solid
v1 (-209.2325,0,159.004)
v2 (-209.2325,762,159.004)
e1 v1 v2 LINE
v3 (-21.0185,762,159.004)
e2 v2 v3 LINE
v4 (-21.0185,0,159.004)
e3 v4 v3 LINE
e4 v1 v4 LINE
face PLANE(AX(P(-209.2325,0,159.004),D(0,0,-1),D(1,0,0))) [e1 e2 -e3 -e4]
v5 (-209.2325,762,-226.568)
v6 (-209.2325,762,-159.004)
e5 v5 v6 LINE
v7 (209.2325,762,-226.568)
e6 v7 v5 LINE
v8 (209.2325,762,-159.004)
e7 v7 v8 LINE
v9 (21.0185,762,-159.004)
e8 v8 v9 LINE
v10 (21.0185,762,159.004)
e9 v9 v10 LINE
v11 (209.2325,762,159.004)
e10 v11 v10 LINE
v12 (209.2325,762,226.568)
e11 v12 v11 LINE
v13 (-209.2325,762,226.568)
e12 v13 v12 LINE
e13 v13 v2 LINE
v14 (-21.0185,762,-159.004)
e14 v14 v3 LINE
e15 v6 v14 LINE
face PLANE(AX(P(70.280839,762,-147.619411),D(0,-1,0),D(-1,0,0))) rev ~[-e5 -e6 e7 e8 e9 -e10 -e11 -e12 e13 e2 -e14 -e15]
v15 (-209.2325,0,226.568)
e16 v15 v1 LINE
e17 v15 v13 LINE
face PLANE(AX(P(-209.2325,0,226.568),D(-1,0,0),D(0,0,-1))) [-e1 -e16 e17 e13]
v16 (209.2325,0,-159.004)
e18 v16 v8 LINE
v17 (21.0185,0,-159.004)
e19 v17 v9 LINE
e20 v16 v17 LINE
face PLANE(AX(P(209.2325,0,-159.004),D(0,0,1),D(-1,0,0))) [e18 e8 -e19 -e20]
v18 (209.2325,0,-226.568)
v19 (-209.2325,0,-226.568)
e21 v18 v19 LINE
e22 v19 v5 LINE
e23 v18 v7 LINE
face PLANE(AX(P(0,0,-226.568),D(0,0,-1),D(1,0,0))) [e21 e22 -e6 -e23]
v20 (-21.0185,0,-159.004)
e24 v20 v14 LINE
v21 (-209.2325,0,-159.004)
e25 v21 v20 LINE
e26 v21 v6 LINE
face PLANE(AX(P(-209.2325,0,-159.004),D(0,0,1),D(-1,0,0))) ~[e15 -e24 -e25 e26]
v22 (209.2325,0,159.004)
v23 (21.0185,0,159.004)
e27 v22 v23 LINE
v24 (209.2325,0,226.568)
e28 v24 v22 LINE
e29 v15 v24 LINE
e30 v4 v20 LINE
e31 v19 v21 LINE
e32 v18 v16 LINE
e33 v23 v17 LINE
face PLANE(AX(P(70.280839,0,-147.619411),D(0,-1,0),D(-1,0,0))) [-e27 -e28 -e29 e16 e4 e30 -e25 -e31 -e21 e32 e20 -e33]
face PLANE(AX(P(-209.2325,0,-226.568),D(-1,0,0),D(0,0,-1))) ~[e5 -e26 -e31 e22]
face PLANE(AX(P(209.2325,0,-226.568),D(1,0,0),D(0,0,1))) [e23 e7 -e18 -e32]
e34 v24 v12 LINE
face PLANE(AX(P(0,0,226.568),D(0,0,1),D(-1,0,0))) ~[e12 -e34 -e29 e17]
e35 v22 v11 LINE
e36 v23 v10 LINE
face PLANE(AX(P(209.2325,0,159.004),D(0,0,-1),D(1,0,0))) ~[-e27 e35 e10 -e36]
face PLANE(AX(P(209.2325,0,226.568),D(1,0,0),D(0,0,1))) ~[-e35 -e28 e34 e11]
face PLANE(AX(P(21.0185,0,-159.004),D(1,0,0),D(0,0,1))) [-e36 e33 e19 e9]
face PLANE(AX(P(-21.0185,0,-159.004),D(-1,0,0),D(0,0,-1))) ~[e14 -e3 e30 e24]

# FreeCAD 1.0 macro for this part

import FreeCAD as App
import Part
import Sketcher
Q = App.Units.Quantity


def add_polygon(sketch, points):
    """Adds a closed chain of lines whose ends are joined by coincident constraints."""
    first, n = sketch.GeometryCount, len(points)
    for a, b in zip(points, points[1:] + points[:1]):
        sketch.addGeometry(Part.LineSegment(App.Vector(*a, 0), App.Vector(*b, 0)), False)
    for i in range(n):
        sketch.addConstraint(Sketcher.Constraint("Coincident", first + i, 2, first + (i + 1) % n, 1))

doc = App.newDocument("Part")
body = doc.addObject("PartDesign::Body", "Body")

# Sketch on XZ plane
sketch1 = body.newObject("Sketcher::SketchObject", "Sketch")
sketch1.AttachmentSupport = (doc.getObject("XZ_Plane"), [""])
sketch1.MapMode = "FlatFace"
add_polygon(sketch1, [(-21, 0), (0, 0), (0, 227), (-209, 227), (-209, 159), (-21, 159)])  # lines 0-5
sketch1.addConstraint(Sketcher.Constraint("Horizontal", 0))
sketch1.addConstraint(Sketcher.Constraint("Vertical", 1))
sketch1.addConstraint(Sketcher.Constraint("Horizontal", 2))
sketch1.addConstraint(Sketcher.Constraint("Vertical", 3))
sketch1.addConstraint(Sketcher.Constraint("Horizontal", 4))
sketch1.addConstraint(Sketcher.Constraint("Vertical", 5))
sketch1.addConstraint(Sketcher.Constraint("Coincident", 0, 2, -1, 1))
sketch1.addConstraint(Sketcher.Constraint("DistanceX", 4, 1, 4, 2, Q("7.41 in")))
sketch1.addConstraint(Sketcher.Constraint("DistanceY", 1, 1, 1, 2, Q("8.92 in")))
sketch1.addConstraint(Sketcher.Constraint("DistanceY", 3, 2, 3, 1, Q("2.66 in")))
sketch1.addConstraint(Sketcher.Constraint("DistanceX", 0, 1, 0, 2, Q("0.8275 in")))
pad1 = body.newObject("PartDesign::Pad", "Pad")
pad1.Profile = sketch1
pad1.Length = Q("30 in")
pad1.Reversed = True
body2 = doc.addObject("PartDesign::Body", "Body001")
doc.recompute()

body2.BaseFeature = body
doc.recompute()

mirroring = doc.addObject("Part::Mirroring", "Mirroring")
mirroring.Source = body
mirroring.Base = App.Vector(0, 0, 0)
mirroring.Normal = App.Vector(0, 0, 1)
body3 = doc.addObject("PartDesign::Body", "Body002")
body3.BaseFeature = mirroring
boolean = body2.newObject("PartDesign::Boolean", "Boolean")
boolean.Type = "Fuse"
boolean.addObjects([body3])
doc.recompute()
body4 = doc.addObject("PartDesign::Body", "Body003")
doc.recompute()

body4.BaseFeature = body2
doc.recompute()

mirroring2 = doc.addObject("Part::Mirroring", "Mirroring001")
mirroring2.Source = body2
mirroring2.Base = App.Vector(0, 0, 0)
mirroring2.Normal = App.Vector(1, 0, 0)
body5 = doc.addObject("PartDesign::Body", "Body004")
body5.BaseFeature = mirroring2
boolean2 = body4.newObject("PartDesign::Boolean", "Boolean001")
boolean2.Type = "Fuse"
boolean2.addObjects([body5])
doc.recompute()
mirroring.Visibility = False
mirroring2.Visibility = False

doc.recompute()
